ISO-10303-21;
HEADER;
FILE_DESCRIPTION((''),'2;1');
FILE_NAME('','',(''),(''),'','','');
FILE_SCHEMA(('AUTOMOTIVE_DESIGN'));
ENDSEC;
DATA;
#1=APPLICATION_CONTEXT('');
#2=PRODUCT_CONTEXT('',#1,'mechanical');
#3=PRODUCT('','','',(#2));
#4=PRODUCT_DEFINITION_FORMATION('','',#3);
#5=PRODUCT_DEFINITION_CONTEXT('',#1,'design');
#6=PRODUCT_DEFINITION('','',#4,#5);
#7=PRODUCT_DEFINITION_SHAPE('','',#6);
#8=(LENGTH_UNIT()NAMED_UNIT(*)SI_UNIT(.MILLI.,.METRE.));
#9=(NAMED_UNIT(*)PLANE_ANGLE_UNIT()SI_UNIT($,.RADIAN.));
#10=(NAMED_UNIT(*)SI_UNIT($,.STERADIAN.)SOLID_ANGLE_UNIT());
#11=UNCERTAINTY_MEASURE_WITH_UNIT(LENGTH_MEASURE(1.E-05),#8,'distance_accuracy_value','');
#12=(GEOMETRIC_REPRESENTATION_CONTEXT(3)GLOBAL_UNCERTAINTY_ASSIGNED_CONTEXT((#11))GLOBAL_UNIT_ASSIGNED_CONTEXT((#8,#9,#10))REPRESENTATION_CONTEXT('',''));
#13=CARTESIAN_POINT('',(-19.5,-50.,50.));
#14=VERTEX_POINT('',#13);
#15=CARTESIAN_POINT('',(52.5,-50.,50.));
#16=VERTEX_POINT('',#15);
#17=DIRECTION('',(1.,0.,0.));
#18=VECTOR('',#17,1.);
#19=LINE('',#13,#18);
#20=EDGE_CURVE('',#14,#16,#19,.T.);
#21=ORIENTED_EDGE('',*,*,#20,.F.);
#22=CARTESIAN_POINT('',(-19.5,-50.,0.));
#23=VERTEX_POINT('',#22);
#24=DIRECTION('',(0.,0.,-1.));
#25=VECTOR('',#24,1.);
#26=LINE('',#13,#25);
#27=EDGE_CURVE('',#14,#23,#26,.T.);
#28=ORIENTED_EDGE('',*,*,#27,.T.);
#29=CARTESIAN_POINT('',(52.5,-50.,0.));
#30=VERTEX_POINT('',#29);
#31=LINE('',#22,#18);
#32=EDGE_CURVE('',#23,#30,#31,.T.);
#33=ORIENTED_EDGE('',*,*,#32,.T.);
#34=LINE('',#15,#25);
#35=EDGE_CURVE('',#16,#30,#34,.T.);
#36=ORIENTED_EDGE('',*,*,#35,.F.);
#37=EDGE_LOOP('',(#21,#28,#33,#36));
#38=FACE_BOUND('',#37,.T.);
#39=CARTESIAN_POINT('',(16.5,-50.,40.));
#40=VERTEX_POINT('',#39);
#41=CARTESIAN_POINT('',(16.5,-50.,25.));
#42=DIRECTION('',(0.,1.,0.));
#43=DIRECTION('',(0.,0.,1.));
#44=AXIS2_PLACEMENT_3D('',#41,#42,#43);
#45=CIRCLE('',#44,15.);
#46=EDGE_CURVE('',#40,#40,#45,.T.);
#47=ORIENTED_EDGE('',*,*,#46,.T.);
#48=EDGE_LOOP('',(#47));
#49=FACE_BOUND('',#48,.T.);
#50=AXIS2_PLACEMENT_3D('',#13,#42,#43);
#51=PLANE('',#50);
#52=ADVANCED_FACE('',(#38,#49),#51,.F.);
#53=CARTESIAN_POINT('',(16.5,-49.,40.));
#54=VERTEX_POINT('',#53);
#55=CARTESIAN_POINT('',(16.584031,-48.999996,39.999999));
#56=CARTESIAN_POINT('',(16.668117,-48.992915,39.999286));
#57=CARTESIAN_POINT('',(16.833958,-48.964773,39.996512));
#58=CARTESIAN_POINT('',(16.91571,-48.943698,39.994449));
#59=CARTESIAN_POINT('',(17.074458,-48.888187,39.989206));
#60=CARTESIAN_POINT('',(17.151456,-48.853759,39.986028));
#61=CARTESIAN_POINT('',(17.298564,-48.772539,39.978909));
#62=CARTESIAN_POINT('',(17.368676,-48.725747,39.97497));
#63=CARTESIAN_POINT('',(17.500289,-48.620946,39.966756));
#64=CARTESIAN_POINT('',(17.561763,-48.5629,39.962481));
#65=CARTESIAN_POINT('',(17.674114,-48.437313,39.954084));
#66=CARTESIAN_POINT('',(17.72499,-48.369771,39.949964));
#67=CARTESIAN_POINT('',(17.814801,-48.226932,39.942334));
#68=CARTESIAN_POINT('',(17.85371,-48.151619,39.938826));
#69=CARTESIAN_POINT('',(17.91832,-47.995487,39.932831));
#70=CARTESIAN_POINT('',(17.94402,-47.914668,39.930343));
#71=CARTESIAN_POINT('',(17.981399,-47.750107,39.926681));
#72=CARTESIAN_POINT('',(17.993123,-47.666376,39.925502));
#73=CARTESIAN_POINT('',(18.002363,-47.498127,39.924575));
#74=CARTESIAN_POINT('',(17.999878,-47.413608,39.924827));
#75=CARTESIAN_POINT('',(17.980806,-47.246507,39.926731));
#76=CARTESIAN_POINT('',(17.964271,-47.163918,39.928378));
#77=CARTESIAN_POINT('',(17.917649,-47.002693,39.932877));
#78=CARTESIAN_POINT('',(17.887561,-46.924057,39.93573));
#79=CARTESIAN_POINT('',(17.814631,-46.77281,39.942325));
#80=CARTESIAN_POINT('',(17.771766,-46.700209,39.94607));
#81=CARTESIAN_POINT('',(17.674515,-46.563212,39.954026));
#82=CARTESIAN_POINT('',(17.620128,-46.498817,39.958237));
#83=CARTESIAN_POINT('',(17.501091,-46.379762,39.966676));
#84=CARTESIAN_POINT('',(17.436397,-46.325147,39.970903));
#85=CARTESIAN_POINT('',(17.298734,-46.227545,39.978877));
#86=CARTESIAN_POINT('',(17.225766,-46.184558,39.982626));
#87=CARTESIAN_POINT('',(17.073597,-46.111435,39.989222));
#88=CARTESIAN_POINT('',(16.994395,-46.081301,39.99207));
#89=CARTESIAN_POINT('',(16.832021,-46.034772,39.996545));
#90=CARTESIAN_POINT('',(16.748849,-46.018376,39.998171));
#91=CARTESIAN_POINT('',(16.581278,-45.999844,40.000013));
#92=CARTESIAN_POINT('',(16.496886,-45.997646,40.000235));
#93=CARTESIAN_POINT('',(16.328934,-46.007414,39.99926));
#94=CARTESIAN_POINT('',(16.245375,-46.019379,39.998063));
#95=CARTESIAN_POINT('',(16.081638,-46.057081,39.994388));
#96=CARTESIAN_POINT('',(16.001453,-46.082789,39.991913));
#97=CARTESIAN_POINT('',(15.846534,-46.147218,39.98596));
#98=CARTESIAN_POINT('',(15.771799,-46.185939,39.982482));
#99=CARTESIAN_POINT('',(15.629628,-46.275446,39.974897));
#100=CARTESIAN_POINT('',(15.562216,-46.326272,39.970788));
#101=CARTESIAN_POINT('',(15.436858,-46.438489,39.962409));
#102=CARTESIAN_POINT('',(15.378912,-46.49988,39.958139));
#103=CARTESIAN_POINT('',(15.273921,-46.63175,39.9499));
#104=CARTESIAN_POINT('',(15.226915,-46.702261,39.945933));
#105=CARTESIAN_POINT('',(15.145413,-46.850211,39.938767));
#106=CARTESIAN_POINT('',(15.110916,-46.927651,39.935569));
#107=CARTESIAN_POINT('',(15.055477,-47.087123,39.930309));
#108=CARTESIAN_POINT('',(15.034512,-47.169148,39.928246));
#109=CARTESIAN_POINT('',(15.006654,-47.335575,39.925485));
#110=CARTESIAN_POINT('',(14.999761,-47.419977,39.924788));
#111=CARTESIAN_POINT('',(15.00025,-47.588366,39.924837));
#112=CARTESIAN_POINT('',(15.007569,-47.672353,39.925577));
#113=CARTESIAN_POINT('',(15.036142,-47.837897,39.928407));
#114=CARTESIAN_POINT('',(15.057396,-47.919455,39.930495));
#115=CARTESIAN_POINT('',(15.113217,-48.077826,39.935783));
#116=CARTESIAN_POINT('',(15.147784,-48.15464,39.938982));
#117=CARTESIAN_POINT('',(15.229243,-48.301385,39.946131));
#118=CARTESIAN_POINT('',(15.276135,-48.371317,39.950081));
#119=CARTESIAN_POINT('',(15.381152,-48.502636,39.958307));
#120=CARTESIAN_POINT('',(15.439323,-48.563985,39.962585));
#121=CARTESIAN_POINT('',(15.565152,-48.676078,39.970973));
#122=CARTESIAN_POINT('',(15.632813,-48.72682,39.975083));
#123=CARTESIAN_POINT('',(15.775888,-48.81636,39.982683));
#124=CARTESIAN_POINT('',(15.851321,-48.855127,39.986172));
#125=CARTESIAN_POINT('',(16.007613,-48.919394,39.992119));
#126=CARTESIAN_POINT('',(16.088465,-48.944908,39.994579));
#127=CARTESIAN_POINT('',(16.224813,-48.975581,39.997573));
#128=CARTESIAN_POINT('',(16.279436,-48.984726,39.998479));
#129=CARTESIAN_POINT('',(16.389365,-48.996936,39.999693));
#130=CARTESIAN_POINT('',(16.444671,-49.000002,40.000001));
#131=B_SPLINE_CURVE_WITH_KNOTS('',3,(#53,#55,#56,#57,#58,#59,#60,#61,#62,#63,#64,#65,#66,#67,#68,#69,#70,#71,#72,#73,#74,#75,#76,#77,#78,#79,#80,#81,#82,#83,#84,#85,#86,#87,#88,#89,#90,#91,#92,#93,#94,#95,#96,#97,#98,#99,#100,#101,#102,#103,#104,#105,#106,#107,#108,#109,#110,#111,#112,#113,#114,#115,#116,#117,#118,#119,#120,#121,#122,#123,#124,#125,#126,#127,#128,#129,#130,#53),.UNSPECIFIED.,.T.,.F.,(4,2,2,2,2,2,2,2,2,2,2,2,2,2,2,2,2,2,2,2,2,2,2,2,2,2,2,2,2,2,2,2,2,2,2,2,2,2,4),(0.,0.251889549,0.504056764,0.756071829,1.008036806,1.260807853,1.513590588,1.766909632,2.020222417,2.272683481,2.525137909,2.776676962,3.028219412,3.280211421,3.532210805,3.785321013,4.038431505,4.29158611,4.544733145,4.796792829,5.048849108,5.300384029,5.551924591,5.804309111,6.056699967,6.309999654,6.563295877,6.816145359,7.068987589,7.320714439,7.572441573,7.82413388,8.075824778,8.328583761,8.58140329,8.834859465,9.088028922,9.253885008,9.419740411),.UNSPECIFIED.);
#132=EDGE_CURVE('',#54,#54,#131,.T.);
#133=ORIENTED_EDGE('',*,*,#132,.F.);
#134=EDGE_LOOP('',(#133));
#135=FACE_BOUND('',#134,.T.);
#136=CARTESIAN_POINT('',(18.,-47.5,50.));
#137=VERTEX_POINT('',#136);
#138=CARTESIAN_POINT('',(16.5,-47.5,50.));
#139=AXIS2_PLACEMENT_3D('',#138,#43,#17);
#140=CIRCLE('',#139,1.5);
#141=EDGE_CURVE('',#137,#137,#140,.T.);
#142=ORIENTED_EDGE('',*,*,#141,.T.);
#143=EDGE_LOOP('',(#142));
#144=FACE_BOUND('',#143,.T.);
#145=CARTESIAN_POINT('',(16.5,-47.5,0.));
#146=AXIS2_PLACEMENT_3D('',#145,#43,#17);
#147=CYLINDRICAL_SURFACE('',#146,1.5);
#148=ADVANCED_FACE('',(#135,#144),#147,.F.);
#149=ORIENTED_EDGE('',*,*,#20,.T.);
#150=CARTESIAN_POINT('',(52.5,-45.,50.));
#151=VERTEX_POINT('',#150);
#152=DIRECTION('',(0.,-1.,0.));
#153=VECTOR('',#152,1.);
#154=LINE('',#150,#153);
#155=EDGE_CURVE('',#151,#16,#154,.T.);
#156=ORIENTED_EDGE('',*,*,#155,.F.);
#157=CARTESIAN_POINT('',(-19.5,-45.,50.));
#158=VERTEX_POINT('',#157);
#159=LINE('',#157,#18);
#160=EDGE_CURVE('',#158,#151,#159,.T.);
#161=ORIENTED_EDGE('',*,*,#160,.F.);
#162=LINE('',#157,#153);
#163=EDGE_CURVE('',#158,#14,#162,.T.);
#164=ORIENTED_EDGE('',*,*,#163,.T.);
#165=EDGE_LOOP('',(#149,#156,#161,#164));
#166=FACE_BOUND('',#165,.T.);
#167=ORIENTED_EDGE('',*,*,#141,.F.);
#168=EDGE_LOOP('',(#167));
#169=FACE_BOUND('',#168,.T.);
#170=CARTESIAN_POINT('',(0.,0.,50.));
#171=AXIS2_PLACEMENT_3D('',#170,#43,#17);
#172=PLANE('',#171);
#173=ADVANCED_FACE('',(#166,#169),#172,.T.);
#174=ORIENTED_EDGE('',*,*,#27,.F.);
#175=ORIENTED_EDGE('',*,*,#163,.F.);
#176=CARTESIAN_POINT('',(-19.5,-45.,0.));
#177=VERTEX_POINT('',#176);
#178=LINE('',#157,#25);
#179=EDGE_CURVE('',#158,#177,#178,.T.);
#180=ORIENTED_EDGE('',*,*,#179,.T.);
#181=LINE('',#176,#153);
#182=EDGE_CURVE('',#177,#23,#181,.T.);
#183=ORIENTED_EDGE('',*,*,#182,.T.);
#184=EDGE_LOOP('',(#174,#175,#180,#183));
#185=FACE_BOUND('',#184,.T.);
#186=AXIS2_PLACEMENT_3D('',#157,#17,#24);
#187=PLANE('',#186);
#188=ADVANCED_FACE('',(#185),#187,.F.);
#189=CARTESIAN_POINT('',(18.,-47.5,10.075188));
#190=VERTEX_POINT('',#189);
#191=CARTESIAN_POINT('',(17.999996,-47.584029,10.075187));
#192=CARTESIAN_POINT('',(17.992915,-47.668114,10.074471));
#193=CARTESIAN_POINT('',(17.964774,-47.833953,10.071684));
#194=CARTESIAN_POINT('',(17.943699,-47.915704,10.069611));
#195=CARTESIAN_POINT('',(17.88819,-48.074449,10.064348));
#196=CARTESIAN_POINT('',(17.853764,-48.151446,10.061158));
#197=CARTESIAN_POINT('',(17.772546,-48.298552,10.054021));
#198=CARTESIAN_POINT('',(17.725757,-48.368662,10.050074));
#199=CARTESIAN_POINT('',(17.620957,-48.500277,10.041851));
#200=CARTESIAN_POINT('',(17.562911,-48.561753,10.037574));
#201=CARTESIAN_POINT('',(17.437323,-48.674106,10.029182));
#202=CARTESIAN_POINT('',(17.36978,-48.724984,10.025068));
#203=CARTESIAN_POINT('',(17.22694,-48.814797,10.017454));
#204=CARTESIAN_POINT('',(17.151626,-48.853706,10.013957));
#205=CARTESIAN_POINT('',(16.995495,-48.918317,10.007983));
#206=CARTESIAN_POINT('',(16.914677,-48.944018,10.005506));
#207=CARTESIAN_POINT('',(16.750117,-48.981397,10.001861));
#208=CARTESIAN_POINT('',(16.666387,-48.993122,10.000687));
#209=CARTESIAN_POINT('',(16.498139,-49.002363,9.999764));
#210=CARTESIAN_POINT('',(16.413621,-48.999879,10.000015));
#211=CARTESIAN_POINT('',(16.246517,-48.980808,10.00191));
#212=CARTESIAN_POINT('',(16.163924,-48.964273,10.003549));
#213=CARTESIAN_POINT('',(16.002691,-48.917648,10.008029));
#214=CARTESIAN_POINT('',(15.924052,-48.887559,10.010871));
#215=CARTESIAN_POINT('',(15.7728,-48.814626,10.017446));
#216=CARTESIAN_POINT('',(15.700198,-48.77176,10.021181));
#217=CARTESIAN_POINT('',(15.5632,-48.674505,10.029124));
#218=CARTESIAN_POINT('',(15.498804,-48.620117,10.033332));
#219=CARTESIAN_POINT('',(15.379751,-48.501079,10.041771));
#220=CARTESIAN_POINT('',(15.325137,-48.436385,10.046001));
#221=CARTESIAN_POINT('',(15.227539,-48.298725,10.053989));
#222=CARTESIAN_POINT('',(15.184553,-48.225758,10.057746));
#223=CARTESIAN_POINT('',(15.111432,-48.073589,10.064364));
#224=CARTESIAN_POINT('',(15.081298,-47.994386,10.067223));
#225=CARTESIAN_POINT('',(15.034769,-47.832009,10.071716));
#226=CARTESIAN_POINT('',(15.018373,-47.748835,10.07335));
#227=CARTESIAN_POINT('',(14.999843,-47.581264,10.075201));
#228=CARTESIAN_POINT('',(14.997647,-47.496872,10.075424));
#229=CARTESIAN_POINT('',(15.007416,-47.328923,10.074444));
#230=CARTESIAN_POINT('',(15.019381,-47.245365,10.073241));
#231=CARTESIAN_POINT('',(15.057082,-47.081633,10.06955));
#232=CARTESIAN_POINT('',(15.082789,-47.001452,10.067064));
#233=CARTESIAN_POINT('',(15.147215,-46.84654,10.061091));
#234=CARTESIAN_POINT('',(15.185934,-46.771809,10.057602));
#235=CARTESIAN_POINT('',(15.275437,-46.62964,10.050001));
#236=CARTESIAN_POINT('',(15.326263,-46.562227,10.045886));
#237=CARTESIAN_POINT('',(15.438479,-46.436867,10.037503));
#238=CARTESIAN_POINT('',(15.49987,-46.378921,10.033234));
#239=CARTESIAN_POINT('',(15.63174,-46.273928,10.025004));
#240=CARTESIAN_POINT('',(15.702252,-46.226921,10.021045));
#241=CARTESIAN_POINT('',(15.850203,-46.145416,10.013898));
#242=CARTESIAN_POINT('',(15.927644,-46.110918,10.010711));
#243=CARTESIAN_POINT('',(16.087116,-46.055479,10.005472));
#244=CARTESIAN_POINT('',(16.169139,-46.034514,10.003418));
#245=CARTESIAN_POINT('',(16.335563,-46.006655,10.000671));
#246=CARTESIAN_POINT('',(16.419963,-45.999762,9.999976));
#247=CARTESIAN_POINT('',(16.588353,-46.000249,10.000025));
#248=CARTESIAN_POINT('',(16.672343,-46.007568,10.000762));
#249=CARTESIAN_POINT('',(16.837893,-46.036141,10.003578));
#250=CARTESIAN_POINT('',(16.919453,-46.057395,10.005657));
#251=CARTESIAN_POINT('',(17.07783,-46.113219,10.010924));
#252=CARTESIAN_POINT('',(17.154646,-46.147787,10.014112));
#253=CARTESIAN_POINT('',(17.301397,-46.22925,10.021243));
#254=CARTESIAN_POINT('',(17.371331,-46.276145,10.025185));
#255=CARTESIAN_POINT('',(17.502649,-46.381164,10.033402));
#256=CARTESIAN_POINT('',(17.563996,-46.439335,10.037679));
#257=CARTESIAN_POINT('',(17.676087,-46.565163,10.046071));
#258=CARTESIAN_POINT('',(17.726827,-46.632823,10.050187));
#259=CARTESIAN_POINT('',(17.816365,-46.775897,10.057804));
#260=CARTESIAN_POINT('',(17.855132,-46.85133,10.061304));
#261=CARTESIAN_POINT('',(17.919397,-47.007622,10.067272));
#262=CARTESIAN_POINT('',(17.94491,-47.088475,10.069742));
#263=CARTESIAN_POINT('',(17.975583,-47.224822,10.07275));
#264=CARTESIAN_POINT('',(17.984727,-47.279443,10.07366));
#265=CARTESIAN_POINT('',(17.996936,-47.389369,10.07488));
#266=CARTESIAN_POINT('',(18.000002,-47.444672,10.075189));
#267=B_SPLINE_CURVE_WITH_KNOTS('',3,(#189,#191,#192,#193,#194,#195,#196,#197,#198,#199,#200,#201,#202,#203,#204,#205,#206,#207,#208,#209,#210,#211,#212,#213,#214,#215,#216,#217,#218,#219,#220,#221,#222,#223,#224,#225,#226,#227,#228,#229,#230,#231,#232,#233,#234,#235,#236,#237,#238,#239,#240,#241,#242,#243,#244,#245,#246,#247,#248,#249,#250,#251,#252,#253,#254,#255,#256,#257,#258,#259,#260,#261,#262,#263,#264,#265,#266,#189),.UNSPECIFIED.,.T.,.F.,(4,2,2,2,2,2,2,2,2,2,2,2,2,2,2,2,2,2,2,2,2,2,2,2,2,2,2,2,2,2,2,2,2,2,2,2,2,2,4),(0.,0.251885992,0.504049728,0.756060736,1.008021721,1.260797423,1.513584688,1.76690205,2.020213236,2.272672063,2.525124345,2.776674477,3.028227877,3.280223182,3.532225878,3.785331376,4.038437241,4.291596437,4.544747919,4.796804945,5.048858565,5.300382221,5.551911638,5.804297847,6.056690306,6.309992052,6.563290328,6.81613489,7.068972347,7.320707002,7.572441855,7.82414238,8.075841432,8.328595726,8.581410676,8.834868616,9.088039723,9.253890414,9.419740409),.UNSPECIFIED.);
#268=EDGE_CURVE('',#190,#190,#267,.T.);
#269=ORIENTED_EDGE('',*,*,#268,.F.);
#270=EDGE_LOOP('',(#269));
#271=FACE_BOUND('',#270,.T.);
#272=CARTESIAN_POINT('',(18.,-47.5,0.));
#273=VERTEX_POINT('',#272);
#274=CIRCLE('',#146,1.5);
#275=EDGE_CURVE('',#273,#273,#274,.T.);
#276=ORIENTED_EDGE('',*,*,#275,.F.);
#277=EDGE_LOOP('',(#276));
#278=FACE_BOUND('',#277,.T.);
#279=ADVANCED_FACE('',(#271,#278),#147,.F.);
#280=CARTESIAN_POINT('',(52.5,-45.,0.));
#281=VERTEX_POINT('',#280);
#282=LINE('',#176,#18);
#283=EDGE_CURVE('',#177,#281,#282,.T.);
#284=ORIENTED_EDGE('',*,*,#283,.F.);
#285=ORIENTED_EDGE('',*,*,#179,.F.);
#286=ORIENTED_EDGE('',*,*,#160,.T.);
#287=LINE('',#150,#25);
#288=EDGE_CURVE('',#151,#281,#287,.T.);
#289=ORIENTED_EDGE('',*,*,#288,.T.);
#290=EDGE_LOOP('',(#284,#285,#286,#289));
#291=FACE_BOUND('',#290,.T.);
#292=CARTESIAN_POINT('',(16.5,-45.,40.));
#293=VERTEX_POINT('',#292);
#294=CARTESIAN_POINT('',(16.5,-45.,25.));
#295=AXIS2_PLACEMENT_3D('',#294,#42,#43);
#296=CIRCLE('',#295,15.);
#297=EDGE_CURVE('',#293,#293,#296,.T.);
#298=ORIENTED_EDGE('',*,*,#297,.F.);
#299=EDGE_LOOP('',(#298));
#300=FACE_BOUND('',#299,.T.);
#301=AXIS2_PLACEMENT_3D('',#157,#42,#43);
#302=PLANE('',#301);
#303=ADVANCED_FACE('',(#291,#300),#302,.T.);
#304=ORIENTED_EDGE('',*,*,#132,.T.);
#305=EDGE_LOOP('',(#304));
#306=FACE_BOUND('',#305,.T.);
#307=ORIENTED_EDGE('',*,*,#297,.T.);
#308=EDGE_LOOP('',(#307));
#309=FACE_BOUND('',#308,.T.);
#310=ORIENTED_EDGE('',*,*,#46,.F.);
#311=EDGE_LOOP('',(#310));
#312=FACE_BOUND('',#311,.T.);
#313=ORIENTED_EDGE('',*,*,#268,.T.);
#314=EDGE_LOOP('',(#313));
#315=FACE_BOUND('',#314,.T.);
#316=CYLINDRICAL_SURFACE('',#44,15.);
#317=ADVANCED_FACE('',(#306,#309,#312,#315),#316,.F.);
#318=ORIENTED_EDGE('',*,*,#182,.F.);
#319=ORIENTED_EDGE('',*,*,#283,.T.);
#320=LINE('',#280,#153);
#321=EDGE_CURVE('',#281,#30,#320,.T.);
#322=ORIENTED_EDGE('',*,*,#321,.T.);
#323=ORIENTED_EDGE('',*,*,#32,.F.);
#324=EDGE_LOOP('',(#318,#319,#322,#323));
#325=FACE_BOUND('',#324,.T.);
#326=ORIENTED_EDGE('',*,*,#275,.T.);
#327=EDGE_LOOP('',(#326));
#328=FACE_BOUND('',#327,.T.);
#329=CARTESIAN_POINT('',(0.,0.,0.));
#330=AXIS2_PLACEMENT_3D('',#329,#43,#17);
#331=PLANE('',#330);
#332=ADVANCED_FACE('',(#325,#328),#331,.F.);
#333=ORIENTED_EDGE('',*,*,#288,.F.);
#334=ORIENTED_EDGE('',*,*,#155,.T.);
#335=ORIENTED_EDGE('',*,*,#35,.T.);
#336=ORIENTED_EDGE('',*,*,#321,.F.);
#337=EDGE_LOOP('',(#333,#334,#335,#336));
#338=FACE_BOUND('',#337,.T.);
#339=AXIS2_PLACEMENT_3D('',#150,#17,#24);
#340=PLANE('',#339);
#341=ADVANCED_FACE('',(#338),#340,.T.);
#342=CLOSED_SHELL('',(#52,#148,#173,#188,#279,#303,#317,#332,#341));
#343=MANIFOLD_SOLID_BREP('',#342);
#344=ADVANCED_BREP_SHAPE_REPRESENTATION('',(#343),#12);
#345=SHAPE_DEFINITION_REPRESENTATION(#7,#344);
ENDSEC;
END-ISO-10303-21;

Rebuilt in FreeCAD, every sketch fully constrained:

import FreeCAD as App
import Part
import Sketcher

V = App.Vector
Q = App.Units.Quantity


def add_polygon(sketch, points):
    """Adds a closed chain of lines whose ends are joined by coincident constraints."""
    first, n = sketch.GeometryCount, len(points)
    for a, b in zip(points, points[1:] + points[:1]):
        sketch.addGeometry(Part.LineSegment(App.Vector(*a, 0), App.Vector(*b, 0)), False)
    for i in range(n):
        sketch.addConstraint(Sketcher.Constraint("Coincident", first + i, 2, first + (i + 1) % n, 1))

doc = App.newDocument("Part")
body = doc.addObject("PartDesign::Body", "Body")

sketch1 = body.newObject("Sketcher::SketchObject", "Sketch")
sketch1.AttachmentSupport = (doc.getObject("XY_Plane"), [""])
sketch1.MapMode = "FlatFace"
add_polygon(sketch1, [(-19.5, -45), (-19.5, -50), (52.5, -50), (52.5, -45)])
sketch1.addConstraint([
    Sketcher.Constraint("Vertical", 0),
    Sketcher.Constraint("Horizontal", 1),
    Sketcher.Constraint("Vertical", 2),
    Sketcher.Constraint("Horizontal", 3),
    Sketcher.Constraint("DistanceX", 1, 1, 1, 2, Q("72 mm")),
    Sketcher.Constraint("DistanceY", 0, 2, 0, 1, Q("5 mm")),
    Sketcher.Constraint("DistanceY", 0, 2, -1, 1, Q("50 mm")),
    Sketcher.Constraint("DistanceX", 0, 2, -1, 1, Q("19.5 mm")),
])
pad1 = body.newObject("PartDesign::Pad", "Pad")
pad1.Profile = sketch1
pad1.Length = 50

sketch2 = body.newObject("Sketcher::SketchObject", "Sketch001")
sketch2.AttachmentSupport = (doc.getObject("XZ_Plane"), [""])
sketch2.MapMode = "FlatFace"
sketch2.AttachmentOffset = App.Placement(V(0, 0, 45), App.Rotation())
sketch2.addGeometry(Part.Circle(V(16.5, 25, 0), V(0, 0, 1), 15), False)
sketch2.addConstraint([
    Sketcher.Constraint("Diameter", 0, Q("30 mm")),
    Sketcher.Constraint("DistanceY", -1, 1, 0, 3, Q("25 mm")),
    Sketcher.Constraint("DistanceX", -1, 1, 0, 3, Q("16.5 mm")),
])
pocket1 = body.newObject("PartDesign::Pocket", "Pocket")
pocket1.Profile = sketch2
pocket1.Type = "ThroughAll"
pocket1.Reversed = True

sketch3 = body.newObject("Sketcher::SketchObject", "Sketch002")
sketch3.AttachmentSupport = (doc.getObject("XY_Plane"), [""])
sketch3.MapMode = "FlatFace"
sketch3.AttachmentOffset = App.Placement(V(0, 0, 50), App.Rotation())
sketch3.addGeometry(Part.Circle(V(16.5, -47.5, 0), V(0, 0, 1), 1.5), False)
sketch3.addConstraint([
    Sketcher.Constraint("Diameter", 0, Q("3 mm")),
    Sketcher.Constraint("DistanceX", -1, 1, 0, 3, Q("16.5 mm")),
    Sketcher.Constraint("DistanceY", 0, 3, -1, 1, Q("47.5 mm")),
])
pocket2 = body.newObject("PartDesign::Pocket", "Pocket001")
pocket2.Profile = sketch3
pocket2.Type = "ThroughAll"

doc.recompute()
